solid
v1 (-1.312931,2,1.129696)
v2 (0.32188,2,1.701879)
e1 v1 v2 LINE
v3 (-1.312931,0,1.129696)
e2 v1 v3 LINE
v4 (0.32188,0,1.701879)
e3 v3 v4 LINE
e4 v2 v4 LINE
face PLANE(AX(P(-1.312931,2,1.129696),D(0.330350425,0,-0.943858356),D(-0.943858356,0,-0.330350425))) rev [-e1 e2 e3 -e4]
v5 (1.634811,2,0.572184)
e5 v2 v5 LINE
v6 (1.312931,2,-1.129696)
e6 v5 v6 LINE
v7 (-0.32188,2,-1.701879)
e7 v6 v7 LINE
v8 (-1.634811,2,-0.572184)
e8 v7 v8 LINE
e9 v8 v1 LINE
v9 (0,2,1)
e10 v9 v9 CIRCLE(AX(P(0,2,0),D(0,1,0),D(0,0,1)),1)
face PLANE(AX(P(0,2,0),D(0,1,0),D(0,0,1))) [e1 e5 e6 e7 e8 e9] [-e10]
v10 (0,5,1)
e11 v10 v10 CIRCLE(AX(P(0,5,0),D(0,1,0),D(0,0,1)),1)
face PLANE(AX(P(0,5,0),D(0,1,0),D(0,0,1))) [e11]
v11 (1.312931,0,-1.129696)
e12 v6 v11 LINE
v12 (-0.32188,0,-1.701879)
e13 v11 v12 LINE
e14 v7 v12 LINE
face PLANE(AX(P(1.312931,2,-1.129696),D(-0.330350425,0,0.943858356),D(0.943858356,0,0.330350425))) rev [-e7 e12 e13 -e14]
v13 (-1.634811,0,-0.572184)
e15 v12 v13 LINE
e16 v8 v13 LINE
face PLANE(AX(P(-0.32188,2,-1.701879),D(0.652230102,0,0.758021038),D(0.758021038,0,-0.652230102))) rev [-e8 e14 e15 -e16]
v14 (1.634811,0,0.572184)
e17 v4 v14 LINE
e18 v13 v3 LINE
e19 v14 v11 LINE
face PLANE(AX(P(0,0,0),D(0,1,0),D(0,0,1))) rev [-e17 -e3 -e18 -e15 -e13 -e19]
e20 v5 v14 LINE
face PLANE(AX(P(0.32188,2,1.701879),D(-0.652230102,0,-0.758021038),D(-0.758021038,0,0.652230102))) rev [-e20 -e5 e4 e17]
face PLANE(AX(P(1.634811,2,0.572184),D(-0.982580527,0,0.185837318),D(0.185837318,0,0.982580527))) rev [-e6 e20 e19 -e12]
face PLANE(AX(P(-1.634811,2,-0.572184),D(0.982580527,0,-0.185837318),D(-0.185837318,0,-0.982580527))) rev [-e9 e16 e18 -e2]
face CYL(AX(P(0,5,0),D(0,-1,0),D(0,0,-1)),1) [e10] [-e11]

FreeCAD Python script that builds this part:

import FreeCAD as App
import Part
import Sketcher


def add_polygon(sketch, points):
    """Adds a closed chain of lines whose ends are joined by coincident constraints."""
    first, n = sketch.GeometryCount, len(points)
    for a, b in zip(points, points[1:] + points[:1]):
        sketch.addGeometry(Part.LineSegment(App.Vector(*a, 0), App.Vector(*b, 0)), False)
    for i in range(n):
        sketch.addConstraint(Sketcher.Constraint("Coincident", first + i, 2, first + (i + 1) % n, 1))

doc = App.newDocument("Part")
body = doc.addObject("PartDesign::Body", "Body")

# Sketch on XZ plane
sketch1 = body.newObject("Sketcher::SketchObject", "Sketch")
sketch1.AttachmentSupport = (doc.getObject("XZ_Plane"), [""])
sketch1.MapMode = "FlatFace"
add_polygon(sketch1, [(1.6, 0.6), (1.3, -1.1), (-0.3, -1.7), (-1.6, -0.6), (-1.3, 1.1), (0.3, 1.7)])  # lines 0-5
sketch1.addConstraint([
    Sketcher.Constraint("Symmetric", 0, 2, 3, 2, -1, 1),
    Sketcher.Constraint("Symmetric", 1, 2, 4, 2, -1, 1),
    Sketcher.Constraint("Symmetric", 2, 2, 5, 2, -1, 1),
    Sketcher.Constraint("Equal", 0, 1),
    Sketcher.Constraint("Equal", 1, 2),
    Sketcher.Constraint("Distance", 0, 1.732051),
    Sketcher.Constraint("DistanceX", -1, 1, 0, 2, 1.312931),
    Sketcher.Constraint("DistanceX", 1, 2, -1, 1, 0.32188),
    Sketcher.Constraint("DistanceY", 1, 2, -1, 1, 1.701879),
])
pad1 = body.newObject("PartDesign::Pad", "Pad")
pad1.Profile = sketch1
pad1.Length = 2
pad1.Reversed = True

# Sketch on XZ plane
sketch2 = body.newObject("Sketcher::SketchObject", "Sketch001")
sketch2.AttachmentSupport = (doc.getObject("XZ_Plane"), [""])
sketch2.MapMode = "FlatFace"
sketch2.AttachmentOffset = App.Placement(App.Vector(0, 0, -2), App.Rotation())
sketch2.addGeometry(Part.Circle(App.Vector(0, 0, 0), App.Vector(0, 0, 1), 1), False)
sketch2.addConstraint([
    Sketcher.Constraint("Coincident", 0, 3, -1, 1),
    Sketcher.Constraint("Diameter", 0, 2.0),
])
pad2 = body.newObject("PartDesign::Pad", "Pad001")
pad2.Profile = sketch2
pad2.Length = 3
pad2.Reversed = True

doc.recompute()
